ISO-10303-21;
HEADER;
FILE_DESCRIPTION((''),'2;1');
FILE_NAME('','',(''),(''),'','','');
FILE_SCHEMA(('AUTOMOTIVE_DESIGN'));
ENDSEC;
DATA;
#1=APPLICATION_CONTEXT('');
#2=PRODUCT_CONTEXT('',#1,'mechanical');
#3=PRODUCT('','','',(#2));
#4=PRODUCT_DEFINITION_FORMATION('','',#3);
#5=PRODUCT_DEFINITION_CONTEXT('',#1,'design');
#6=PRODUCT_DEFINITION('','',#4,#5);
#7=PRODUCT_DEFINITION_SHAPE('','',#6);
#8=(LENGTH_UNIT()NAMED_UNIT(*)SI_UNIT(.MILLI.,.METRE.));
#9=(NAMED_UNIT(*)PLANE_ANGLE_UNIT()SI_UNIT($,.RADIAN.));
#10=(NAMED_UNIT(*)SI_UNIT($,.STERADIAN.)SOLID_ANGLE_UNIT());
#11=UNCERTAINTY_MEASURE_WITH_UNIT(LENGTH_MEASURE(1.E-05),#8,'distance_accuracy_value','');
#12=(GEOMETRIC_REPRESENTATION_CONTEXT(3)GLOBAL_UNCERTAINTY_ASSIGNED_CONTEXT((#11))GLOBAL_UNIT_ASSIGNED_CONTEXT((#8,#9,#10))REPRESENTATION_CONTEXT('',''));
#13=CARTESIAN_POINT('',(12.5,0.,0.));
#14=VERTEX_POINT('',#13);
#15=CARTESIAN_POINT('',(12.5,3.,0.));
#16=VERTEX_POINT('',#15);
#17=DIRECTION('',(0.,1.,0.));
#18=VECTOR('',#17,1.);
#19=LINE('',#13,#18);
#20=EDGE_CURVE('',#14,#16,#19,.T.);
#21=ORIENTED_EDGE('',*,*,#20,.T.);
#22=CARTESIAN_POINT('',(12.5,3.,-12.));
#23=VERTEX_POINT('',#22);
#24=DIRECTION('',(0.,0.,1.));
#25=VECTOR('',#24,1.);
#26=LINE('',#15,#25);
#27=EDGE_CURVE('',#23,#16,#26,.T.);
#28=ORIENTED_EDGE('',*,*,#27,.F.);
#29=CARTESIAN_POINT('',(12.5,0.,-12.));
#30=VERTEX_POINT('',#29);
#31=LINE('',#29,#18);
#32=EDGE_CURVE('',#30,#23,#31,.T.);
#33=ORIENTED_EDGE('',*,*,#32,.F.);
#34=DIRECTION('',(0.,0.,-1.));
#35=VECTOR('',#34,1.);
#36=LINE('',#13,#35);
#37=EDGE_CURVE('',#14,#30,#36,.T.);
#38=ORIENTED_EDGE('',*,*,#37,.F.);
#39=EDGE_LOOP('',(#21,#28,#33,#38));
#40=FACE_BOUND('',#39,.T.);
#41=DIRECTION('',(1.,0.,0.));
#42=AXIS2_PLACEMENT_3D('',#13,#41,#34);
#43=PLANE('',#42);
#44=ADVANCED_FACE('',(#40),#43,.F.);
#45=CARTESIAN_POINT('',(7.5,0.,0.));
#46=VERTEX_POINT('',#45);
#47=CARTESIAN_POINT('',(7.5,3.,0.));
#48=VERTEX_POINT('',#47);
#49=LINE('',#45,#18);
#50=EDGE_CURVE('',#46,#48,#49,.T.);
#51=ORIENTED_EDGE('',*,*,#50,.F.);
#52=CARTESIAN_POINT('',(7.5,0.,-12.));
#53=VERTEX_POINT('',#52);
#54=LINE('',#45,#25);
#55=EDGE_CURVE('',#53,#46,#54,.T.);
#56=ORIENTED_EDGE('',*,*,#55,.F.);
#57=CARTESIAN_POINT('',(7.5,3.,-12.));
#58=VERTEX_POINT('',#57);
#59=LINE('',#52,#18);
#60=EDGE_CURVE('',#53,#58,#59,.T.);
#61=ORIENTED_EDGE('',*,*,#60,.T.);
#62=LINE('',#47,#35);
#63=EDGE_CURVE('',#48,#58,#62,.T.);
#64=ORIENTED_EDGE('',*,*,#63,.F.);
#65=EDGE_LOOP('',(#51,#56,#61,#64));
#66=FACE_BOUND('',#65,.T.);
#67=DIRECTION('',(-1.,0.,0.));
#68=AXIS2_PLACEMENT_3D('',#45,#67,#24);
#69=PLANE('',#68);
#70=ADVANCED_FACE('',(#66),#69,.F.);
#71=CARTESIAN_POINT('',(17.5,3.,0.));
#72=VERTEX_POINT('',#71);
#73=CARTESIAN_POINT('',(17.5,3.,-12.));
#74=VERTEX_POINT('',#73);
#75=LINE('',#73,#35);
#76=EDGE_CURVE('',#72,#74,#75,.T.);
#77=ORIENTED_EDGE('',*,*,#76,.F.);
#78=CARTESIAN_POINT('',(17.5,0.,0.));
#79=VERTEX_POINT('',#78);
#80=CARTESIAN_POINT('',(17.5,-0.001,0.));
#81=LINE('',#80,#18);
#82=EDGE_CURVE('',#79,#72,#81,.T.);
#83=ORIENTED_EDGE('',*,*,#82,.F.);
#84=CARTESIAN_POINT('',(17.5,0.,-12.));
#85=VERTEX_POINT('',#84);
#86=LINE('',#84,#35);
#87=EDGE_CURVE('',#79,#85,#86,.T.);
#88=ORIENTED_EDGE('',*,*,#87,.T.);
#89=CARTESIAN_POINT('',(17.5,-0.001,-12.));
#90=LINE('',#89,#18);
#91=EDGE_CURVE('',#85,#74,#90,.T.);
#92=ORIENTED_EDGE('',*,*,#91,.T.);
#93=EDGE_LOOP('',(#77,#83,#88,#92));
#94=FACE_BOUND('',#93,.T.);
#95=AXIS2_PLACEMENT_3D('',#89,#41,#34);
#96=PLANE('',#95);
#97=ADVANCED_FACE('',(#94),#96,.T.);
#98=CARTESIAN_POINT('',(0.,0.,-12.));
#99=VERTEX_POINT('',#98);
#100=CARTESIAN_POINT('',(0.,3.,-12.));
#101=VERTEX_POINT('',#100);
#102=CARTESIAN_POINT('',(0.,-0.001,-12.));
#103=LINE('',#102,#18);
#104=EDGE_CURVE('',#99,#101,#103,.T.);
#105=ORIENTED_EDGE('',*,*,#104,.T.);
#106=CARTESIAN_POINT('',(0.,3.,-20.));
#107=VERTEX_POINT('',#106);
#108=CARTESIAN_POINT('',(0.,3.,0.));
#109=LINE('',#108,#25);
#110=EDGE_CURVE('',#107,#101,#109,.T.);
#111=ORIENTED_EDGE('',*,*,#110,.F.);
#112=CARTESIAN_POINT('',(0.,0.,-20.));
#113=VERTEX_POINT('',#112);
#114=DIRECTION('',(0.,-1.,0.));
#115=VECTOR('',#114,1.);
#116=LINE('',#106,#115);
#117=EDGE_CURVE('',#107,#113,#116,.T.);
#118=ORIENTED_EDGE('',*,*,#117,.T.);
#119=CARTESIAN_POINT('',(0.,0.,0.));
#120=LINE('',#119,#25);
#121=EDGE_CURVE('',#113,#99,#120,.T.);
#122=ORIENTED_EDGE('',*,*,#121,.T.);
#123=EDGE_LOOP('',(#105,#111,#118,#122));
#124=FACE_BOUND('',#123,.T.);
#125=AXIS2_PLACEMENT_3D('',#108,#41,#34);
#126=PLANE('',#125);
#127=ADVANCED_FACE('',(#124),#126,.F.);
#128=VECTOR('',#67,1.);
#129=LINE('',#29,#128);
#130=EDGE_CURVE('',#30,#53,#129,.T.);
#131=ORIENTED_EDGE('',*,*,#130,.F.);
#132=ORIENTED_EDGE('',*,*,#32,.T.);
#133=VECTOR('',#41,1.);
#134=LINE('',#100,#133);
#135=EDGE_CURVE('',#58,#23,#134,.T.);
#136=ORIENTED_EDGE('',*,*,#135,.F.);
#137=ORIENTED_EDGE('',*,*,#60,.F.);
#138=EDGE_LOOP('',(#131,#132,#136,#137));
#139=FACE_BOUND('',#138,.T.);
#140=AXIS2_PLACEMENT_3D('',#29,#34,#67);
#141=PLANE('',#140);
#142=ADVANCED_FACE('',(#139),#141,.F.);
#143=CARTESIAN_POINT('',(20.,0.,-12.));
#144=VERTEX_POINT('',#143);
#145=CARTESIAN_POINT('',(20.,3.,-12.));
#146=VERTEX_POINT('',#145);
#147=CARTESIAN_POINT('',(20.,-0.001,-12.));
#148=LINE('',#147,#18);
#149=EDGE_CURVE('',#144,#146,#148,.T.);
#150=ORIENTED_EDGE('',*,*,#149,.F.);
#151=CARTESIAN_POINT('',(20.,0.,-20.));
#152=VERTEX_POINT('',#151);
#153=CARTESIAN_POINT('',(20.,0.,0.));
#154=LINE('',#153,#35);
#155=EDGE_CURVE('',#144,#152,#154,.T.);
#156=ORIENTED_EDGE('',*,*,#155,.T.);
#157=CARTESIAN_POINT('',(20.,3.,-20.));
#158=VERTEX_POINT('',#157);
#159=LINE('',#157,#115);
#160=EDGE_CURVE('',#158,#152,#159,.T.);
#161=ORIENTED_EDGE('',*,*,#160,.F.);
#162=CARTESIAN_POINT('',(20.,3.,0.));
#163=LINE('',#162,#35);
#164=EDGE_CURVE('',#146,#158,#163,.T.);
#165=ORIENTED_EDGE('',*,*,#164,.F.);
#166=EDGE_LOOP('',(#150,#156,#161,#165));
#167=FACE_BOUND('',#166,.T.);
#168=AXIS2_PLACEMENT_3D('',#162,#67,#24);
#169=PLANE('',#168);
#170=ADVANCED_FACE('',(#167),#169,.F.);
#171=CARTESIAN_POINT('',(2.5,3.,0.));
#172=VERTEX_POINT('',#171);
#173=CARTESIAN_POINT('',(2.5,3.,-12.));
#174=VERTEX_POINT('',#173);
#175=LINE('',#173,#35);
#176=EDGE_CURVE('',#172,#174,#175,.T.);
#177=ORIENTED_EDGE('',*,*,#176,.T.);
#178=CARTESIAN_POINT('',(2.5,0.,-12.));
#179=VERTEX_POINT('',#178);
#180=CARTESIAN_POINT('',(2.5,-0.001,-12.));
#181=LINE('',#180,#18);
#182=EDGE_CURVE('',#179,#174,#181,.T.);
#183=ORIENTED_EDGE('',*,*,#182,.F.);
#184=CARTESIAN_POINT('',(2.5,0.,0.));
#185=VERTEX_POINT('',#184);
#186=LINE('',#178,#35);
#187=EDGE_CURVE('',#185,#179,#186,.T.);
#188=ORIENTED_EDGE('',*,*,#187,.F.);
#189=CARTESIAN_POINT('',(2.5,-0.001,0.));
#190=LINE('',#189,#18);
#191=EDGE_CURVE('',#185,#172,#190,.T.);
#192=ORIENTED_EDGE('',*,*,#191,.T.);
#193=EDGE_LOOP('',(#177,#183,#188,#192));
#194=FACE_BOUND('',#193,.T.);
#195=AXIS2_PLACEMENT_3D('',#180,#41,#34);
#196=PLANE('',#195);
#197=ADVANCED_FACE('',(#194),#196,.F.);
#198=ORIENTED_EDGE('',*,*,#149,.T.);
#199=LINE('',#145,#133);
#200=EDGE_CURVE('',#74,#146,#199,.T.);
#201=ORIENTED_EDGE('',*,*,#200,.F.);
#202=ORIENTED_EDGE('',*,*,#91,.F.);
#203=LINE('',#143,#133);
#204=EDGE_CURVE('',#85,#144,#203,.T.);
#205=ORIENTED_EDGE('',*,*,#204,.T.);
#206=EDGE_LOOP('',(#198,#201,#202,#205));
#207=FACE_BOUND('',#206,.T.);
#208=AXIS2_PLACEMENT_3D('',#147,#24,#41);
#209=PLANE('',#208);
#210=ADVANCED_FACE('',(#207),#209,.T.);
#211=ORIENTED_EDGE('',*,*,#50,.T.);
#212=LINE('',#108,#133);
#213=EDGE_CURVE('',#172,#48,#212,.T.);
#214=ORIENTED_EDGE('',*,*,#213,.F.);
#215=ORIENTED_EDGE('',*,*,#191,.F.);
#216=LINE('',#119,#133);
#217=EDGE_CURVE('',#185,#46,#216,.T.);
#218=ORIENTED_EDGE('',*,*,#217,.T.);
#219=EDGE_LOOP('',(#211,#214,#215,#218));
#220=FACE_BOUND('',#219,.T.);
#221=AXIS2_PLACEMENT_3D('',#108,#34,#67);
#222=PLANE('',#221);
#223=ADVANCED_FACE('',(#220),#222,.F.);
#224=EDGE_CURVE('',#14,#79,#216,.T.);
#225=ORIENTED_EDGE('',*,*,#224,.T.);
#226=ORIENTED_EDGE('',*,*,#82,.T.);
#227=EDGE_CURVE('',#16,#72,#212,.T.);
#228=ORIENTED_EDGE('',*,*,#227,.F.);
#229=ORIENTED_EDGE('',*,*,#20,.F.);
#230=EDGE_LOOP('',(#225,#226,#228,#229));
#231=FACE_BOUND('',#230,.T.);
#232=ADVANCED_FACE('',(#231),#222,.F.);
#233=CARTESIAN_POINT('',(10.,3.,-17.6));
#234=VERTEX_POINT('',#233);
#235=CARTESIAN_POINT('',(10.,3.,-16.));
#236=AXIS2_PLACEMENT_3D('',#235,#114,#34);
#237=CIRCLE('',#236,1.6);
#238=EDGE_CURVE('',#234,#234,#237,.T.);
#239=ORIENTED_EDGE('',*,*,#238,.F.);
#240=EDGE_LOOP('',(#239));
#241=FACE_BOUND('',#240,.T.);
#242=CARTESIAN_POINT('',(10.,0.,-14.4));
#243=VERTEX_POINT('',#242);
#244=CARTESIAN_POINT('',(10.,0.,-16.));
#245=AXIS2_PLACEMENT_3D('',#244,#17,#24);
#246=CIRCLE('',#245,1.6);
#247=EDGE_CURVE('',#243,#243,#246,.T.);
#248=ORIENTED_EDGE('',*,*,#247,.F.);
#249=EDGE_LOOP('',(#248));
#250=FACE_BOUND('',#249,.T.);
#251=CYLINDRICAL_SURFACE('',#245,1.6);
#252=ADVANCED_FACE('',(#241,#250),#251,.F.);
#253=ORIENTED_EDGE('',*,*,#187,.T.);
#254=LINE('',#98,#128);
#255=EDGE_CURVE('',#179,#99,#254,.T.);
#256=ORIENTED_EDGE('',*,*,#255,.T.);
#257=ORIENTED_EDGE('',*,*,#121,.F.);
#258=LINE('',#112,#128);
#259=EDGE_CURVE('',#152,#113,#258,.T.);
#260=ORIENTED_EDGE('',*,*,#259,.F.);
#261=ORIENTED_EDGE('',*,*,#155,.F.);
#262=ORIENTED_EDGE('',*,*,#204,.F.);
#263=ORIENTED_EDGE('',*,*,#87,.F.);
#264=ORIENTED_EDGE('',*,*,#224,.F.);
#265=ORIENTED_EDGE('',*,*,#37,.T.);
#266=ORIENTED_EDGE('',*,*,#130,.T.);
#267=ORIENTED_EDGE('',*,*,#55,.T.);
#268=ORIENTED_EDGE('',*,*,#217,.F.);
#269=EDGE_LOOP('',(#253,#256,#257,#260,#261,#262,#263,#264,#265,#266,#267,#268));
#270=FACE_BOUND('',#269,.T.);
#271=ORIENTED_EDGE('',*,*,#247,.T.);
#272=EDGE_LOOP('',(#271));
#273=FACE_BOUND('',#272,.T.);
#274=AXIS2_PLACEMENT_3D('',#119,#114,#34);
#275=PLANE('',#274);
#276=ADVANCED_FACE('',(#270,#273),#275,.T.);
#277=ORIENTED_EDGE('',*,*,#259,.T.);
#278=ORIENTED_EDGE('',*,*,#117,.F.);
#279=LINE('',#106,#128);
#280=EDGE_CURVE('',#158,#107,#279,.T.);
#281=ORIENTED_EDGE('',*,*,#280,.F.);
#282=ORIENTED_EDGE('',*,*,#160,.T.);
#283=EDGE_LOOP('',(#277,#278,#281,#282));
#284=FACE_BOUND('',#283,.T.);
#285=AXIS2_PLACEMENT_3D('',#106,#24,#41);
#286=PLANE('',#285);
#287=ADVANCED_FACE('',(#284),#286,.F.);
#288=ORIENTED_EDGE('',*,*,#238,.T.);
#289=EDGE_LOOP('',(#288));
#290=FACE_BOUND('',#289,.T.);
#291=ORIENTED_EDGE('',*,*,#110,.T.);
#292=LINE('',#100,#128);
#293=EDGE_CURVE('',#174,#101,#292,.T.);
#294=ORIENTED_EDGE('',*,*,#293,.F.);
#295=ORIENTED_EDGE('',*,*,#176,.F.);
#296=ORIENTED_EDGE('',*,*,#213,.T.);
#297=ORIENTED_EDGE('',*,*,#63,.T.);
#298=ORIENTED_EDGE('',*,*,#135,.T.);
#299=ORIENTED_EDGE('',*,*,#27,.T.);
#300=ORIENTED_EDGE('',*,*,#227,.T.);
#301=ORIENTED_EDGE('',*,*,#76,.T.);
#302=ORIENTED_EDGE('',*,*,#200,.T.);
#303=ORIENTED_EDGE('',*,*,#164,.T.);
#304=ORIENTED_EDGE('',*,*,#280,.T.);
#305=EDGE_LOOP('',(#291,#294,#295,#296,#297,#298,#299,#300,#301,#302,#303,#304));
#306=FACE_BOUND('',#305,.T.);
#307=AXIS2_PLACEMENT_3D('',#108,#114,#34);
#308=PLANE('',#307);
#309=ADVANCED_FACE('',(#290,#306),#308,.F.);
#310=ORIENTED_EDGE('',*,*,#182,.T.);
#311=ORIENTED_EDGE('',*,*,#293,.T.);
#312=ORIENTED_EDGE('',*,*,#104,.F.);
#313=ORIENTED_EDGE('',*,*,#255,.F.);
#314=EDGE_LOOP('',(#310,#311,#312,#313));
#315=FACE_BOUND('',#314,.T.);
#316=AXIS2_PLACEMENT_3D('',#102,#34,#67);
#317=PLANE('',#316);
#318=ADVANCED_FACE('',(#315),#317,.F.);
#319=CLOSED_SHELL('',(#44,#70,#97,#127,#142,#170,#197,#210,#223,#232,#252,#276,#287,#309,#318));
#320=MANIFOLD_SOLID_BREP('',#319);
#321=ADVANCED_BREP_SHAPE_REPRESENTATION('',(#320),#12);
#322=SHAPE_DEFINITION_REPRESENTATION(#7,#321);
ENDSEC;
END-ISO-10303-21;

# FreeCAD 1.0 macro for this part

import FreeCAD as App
import Part
import Sketcher

V = App.Vector


def add_polygon(sketch, points):
    """Adds a closed chain of lines whose ends are joined by coincident constraints."""
    first, n = sketch.GeometryCount, len(points)
    for a, b in zip(points, points[1:] + points[:1]):
        sketch.addGeometry(Part.LineSegment(App.Vector(*a, 0), App.Vector(*b, 0)), False)
    for i in range(n):
        sketch.addConstraint(Sketcher.Constraint("Coincident", first + i, 2, first + (i + 1) % n, 1))

doc = App.newDocument("Part")
body = doc.addObject("PartDesign::Body", "Body")

# Sketch on XZ plane
sketch1 = doc.addObject("Sketcher::SketchObject", "Sketch")
body.addObject(sketch1)
sketch1.AttachmentSupport = (doc.XZ_Plane, [""])
sketch1.MapMode = "FlatFace"
add_polygon(sketch1, [(0, -20), (0, 0), (20, 0), (20, -20)])  # lines 0-3
sketch1.addConstraint([
    Sketcher.Constraint("Vertical", 0),
    Sketcher.Constraint("Horizontal", 1),
    Sketcher.Constraint("Vertical", 2),
    Sketcher.Constraint("Horizontal", 3),
    Sketcher.Constraint("Coincident", 0, 2, -1, 1),
    Sketcher.Constraint("Equal", 3, 0),
    Sketcher.Constraint("DistanceX", 1, 1, 1, 2, 20.0),
])
pad1 = doc.addObject("PartDesign::Pad", "Pad")
body.addObject(pad1)
pad1.Profile = sketch1
pad1.Length = 3
pad1.Reversed = True

# Sketch on XZ plane
sketch2 = doc.addObject("Sketcher::SketchObject", "Sketch001")
body.addObject(sketch2)
sketch2.AttachmentSupport = (doc.XZ_Plane, [""])
sketch2.MapMode = "FlatFace"
sketch2.AttachmentOffset = App.Placement(V(0, 0, -3), App.Rotation())
add_polygon(sketch2, [(0, -12), (0, 0), (2.5, 0), (2.5, -12)])  # lines 0-3
sketch2.addConstraint([
    Sketcher.Constraint("Vertical", 0),
    Sketcher.Constraint("Horizontal", 1),
    Sketcher.Constraint("Vertical", 2),
    Sketcher.Constraint("Horizontal", 3),
    Sketcher.Constraint("Coincident", 0, 2, -1, 1),
    Sketcher.Constraint("DistanceY", 0, 1, 0, 2, 12.0),
    Sketcher.Constraint("DistanceX", 1, 1, 1, 2, 2.5),
])
pocket1 = doc.addObject("PartDesign::Pocket", "Pocket")
body.addObject(pocket1)
pocket1.Profile = sketch2
pocket1.Length = 3
pocket1.Reversed = True
doc.recompute()

datumplane = doc.addObject("PartDesign::Plane", "DatumPlane")
body.addObject(datumplane)
datumplane.AttachmentSupport = (doc.YZ_Plane, [""])
datumplane.MapMode = "FlatFace"
datumplane.AttachmentOffset = App.Placement(V(0, 0, 10), App.Rotation())
mirrored = doc.addObject("PartDesign::Mirrored", "Mirrored")
body.addObject(mirrored)
mirrored.Originals = [pocket1]
mirrored.MirrorPlane = (datumplane, [""])
body.Tip = mirrored

# Sketch on XZ plane
sketch3 = doc.addObject("Sketcher::SketchObject", "Sketch002")
body.addObject(sketch3)
sketch3.AttachmentSupport = (doc.XZ_Plane, [""])
sketch3.MapMode = "FlatFace"
sketch3.AttachmentOffset = App.Placement(V(0, 0, -3), App.Rotation())
sketch3.addGeometry(Part.Circle(V(10, -16, 0), V(0, 0, 1), 1.6), False)
sketch3.addConstraint([
    Sketcher.Constraint("Diameter", 0, 3.2),
    Sketcher.Constraint("DistanceX", -1, 1, 0, 3, 10.0),
    Sketcher.Constraint("DistanceY", 0, 3, -1, 1, 16.0),
])
pocket2 = doc.addObject("PartDesign::Pocket", "Pocket001")
body.addObject(pocket2)
pocket2.Profile = sketch3
pocket2.Type = "ThroughAll"
pocket2.Midplane = True

# Sketch on XZ plane
sketch4 = doc.addObject("Sketcher::SketchObject", "Sketch003")
body.addObject(sketch4)
sketch4.AttachmentSupport = (doc.XZ_Plane, [""])
sketch4.MapMode = "FlatFace"
sketch4.AttachmentOffset = App.Placement(V(0, 0, -3), App.Rotation())
add_polygon(sketch4, [(8, -12), (8, 0), (12, 0), (12, -12)])  # lines 0-3
sketch4.addConstraint([
    Sketcher.Constraint("Vertical", 0),
    Sketcher.Constraint("Horizontal", 1),
    Sketcher.Constraint("Vertical", 2),
    Sketcher.Constraint("Horizontal", 3),
    Sketcher.Constraint("PointOnObject", 0, 2, -1),
    Sketcher.Constraint("DistanceX", 1, 1, 1, 2, 5.0),
    Sketcher.Constraint("DistanceY", 0, 1, 0, 2, 12.0),
    Sketcher.Constraint("DistanceX", -1, 1, 0, 2, 7.5),
])
pocket3 = doc.addObject("PartDesign::Pocket", "Pocket002")
body.addObject(pocket3)
pocket3.Profile = sketch4
pocket3.Type = "ThroughAll"
pocket3.Midplane = True

doc.recompute()
